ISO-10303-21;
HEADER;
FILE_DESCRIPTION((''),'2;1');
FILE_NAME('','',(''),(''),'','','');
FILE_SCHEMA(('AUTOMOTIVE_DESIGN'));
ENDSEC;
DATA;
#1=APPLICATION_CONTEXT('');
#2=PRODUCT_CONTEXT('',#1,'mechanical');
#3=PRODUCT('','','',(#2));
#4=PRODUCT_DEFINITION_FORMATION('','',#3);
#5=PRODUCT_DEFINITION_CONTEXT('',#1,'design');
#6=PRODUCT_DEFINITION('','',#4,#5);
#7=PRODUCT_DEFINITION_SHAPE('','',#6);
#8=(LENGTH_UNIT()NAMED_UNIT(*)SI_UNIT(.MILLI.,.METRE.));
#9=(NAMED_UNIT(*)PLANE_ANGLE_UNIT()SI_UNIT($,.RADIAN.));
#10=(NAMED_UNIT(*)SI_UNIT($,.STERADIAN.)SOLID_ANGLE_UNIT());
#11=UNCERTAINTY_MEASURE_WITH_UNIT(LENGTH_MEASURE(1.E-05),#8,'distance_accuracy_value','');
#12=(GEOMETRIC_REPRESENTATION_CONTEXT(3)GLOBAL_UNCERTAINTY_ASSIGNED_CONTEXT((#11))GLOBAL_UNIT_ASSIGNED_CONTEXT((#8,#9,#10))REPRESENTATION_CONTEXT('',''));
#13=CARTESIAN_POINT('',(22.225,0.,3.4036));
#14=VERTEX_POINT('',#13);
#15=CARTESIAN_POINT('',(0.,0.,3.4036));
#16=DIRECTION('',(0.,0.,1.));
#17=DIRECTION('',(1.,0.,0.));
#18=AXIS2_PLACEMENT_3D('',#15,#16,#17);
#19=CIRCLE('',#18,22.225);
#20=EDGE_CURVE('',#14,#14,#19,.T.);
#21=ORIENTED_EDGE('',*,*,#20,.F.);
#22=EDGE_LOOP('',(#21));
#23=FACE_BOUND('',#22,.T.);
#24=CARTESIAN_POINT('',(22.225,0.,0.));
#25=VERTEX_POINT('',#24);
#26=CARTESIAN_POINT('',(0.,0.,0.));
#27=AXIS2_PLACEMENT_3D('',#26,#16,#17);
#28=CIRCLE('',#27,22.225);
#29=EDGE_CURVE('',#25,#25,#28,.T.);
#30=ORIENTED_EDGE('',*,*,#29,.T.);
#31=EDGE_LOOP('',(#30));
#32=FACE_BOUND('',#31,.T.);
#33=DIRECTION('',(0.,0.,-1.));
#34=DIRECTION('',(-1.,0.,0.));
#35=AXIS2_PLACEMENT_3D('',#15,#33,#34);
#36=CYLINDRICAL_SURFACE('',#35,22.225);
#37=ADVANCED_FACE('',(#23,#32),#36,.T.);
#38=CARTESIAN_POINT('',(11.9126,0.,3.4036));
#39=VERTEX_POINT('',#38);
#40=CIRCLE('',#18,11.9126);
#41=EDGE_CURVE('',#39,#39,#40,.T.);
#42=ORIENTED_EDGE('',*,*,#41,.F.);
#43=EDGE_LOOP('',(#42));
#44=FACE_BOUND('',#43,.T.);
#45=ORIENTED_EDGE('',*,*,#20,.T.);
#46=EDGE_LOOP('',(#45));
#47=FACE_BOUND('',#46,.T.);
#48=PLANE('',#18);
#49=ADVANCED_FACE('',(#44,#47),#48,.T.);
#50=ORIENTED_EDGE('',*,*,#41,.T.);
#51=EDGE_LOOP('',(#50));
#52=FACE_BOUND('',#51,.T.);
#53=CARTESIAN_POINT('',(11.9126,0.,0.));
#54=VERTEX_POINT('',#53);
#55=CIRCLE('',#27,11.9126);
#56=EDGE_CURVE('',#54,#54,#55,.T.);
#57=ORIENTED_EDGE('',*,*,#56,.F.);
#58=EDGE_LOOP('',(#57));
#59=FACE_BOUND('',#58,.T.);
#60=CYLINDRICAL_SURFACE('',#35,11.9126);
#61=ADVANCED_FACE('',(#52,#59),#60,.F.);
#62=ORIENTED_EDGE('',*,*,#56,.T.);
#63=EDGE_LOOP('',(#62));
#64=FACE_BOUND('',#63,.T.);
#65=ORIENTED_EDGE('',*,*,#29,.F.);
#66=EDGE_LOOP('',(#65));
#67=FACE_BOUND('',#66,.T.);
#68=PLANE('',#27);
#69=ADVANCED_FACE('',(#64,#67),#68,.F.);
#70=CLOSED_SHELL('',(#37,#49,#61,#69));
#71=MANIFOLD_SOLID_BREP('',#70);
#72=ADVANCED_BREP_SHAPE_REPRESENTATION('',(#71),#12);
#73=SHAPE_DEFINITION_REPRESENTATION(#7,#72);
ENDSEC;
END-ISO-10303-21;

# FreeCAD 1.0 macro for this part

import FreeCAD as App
import Part
import Sketcher
Q = App.Units.Quantity

doc = App.newDocument("Part")
body = doc.addObject("PartDesign::Body", "Body")

# Sketch on XY plane
sketch1 = body.newObject("Sketcher::SketchObject", "Sketch")
sketch1.AttachmentSupport = (doc.getObject("XY_Plane"), [""])
sketch1.MapMode = "FlatFace"
sketch1.addGeometry([
    Part.Circle(App.Vector(0, 0, 0), App.Vector(0, 0, 1), 22.225),
    Part.Circle(App.Vector(0, 0, 0), App.Vector(0, 0, 1), 11.9126),
], False)
sketch1.addConstraint([
    Sketcher.Constraint("Coincident", 0, 3, -1, 1),
    Sketcher.Constraint("Coincident", 1, 3, -1, 1),
    Sketcher.Constraint("Diameter", 0, Q("1.75 in")),
    Sketcher.Constraint("Diameter", 1, Q("0.938 in")),
])
pad1 = body.newObject("PartDesign::Pad", "Pad")
pad1.Profile = sketch1
pad1.Length = Q("0.134 in")

doc.recompute()
